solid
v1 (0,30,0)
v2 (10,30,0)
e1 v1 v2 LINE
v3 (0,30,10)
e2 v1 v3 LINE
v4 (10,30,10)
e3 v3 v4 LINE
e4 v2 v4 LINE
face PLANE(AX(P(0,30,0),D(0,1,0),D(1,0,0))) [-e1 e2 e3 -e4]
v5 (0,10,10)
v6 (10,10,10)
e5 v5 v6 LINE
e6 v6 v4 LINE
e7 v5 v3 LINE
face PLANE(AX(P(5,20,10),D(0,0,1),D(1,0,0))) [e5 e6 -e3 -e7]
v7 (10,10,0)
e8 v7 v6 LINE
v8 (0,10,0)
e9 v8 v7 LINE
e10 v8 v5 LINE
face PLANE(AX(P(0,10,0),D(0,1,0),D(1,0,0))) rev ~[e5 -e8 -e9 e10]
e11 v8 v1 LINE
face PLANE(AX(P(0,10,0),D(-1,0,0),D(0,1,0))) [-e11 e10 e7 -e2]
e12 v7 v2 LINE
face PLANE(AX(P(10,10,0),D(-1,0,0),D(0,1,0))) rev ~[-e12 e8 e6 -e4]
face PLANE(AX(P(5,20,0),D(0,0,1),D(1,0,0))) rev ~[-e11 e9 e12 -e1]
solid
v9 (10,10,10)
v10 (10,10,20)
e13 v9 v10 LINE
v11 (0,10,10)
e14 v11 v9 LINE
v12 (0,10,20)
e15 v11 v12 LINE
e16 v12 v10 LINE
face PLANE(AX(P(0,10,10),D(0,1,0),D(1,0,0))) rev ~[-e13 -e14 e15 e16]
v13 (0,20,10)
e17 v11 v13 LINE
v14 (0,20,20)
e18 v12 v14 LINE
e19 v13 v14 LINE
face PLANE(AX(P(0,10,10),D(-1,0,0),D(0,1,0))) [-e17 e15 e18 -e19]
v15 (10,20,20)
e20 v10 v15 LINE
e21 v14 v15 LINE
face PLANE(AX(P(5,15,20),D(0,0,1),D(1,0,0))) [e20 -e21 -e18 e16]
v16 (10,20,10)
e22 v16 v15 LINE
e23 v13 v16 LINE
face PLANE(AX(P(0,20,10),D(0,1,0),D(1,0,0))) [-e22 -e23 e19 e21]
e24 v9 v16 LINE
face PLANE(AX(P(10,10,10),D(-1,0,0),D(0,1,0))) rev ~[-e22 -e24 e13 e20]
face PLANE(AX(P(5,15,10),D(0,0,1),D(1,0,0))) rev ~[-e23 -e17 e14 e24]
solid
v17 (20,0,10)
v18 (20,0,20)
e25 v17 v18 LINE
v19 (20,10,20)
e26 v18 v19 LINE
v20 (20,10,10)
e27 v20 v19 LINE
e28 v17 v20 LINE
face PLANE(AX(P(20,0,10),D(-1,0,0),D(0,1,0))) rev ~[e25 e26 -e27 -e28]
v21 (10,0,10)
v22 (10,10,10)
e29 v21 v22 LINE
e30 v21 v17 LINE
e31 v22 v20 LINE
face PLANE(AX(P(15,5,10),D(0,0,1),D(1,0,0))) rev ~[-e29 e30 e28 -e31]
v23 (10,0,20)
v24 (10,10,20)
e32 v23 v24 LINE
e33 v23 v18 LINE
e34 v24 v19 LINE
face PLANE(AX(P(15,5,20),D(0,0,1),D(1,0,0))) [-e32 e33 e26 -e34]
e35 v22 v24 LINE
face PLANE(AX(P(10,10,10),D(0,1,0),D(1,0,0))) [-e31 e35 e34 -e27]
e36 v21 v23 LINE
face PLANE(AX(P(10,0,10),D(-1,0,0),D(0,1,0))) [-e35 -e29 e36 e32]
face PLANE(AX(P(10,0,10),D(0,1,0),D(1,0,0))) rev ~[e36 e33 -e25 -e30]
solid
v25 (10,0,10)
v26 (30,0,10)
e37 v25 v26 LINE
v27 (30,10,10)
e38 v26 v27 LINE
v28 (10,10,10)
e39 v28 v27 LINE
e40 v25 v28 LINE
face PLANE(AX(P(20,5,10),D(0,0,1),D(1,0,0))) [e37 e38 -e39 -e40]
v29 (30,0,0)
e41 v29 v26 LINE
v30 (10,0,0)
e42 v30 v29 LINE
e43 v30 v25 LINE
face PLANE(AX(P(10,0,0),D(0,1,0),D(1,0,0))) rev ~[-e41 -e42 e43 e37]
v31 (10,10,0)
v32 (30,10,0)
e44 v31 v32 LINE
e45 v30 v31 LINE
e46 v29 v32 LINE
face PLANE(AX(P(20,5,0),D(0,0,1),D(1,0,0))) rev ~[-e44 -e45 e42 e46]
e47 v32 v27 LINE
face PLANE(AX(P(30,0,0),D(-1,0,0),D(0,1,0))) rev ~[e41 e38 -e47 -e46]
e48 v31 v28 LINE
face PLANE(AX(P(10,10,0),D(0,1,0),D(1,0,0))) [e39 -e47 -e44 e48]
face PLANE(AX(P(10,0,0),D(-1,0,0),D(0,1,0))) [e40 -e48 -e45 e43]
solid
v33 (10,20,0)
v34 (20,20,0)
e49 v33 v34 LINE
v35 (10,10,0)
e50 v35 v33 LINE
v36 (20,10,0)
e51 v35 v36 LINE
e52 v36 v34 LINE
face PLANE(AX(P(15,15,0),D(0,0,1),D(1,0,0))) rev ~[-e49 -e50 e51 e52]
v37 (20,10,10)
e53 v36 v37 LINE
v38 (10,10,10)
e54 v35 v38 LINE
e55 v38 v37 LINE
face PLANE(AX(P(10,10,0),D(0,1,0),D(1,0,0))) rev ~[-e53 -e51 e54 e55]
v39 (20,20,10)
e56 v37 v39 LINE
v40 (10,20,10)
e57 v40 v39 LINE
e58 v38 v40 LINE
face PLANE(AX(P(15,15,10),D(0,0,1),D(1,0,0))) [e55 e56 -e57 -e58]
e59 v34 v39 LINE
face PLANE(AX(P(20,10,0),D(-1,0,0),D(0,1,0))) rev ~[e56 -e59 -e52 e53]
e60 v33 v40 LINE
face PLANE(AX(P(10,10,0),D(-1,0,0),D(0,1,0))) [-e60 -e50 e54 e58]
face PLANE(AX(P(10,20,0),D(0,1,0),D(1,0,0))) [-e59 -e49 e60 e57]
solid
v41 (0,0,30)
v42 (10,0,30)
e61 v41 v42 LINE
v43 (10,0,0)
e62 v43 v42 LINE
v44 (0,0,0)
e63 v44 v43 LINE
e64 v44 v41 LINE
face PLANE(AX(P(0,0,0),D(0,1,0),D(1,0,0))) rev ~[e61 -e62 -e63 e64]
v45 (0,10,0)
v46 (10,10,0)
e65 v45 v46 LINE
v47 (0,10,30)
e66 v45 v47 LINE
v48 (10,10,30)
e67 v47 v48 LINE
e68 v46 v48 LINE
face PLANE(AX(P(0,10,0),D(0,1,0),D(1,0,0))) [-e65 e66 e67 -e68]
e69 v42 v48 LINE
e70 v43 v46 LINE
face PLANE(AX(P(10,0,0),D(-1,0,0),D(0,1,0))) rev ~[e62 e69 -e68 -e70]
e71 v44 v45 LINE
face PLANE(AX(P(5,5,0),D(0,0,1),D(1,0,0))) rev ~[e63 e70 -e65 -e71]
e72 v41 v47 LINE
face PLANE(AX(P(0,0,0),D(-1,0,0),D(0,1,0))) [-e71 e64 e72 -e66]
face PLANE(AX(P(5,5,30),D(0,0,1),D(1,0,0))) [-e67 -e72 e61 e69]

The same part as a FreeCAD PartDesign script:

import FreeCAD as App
import Part
import Sketcher
Q = App.Units.Quantity

doc = App.newDocument("Part")
body = doc.addObject("PartDesign::Body", "Body")

# Sketch on XY plane
sketch1 = body.newObject("Sketcher::SketchObject", "Sketch")
sketch1.AttachmentSupport = (doc.getObject("XY_Plane"), [""])
sketch1.MapMode = "FlatFace"
sketch1.addGeometry([
    Part.LineSegment(App.Vector(0, 10, 0), App.Vector(0, 0, 0)),
    Part.LineSegment(App.Vector(0, 0, 0), App.Vector(10, 0, 0)),
    Part.LineSegment(App.Vector(10, 0, 0), App.Vector(10, 10, 0)),
    Part.LineSegment(App.Vector(10, 10, 0), App.Vector(0, 10, 0)),
], False)
sketch1.addConstraint([
    Sketcher.Constraint("Coincident", 0, 2, 1, 1),
    Sketcher.Constraint("Coincident", 1, 2, 2, 1),
    Sketcher.Constraint("Coincident", 2, 2, 3, 1),
    Sketcher.Constraint("Coincident", 3, 2, 0, 1),
    Sketcher.Constraint("Vertical", 0),
    Sketcher.Constraint("Horizontal", 1),
    Sketcher.Constraint("Vertical", 2),
    Sketcher.Constraint("Horizontal", 3),
    Sketcher.Constraint("Coincident", 0, 2, -1, 1),
    Sketcher.Constraint("Equal", 3, 0),
    Sketcher.Constraint("DistanceX", 1, 1, 1, 2, Q("10 mm")),
])
pad1 = body.newObject("PartDesign::Pad", "Pad")
pad1.Profile = sketch1
pad1.Length = 30
body2 = doc.addObject("PartDesign::Body", "Body001")

# Sketch on XY plane
sketch2 = body2.newObject("Sketcher::SketchObject", "Sketch001")
sketch2.AttachmentSupport = (doc.getObject("XY_Plane001"), [""])
sketch2.MapMode = "FlatFace"
sketch2.addGeometry([
    Part.LineSegment(App.Vector(10, 10, 0), App.Vector(10, 0, 0)),
    Part.LineSegment(App.Vector(10, 0, 0), App.Vector(30, 0, 0)),
    Part.LineSegment(App.Vector(30, 0, 0), App.Vector(30, 10, 0)),
    Part.LineSegment(App.Vector(30, 10, 0), App.Vector(10, 10, 0)),
], False)
sketch2.addConstraint([
    Sketcher.Constraint("Coincident", 0, 2, 1, 1),
    Sketcher.Constraint("Coincident", 1, 2, 2, 1),
    Sketcher.Constraint("Coincident", 2, 2, 3, 1),
    Sketcher.Constraint("Coincident", 3, 2, 0, 1),
    Sketcher.Constraint("Vertical", 0),
    Sketcher.Constraint("Horizontal", 1),
    Sketcher.Constraint("Vertical", 2),
    Sketcher.Constraint("Horizontal", 3),
    Sketcher.Constraint("PointOnObject", 0, 2, -1),
    Sketcher.Constraint("DistanceX", 1, 1, 1, 2, Q("20 mm")),
    Sketcher.Constraint("DistanceY", 0, 2, 0, 1, Q("10 mm")),
    Sketcher.Constraint("DistanceX", -1, 1, 0, 2, Q("10 mm")),
])
pad2 = body2.newObject("PartDesign::Pad", "Pad001")
pad2.Profile = sketch2
pad2.Length = 10
body3 = doc.addObject("PartDesign::Body", "Body002")

# Sketch on XY plane
sketch3 = body3.newObject("Sketcher::SketchObject", "Sketch002")
sketch3.AttachmentSupport = (doc.getObject("XY_Plane002"), [""])
sketch3.MapMode = "FlatFace"
sketch3.AttachmentOffset = App.Placement(App.Vector(0, 0, 10), App.Rotation())
sketch3.addGeometry([
    Part.LineSegment(App.Vector(10, 10, 0), App.Vector(10, 0, 0)),
    Part.LineSegment(App.Vector(10, 0, 0), App.Vector(20, 0, 0)),
    Part.LineSegment(App.Vector(20, 0, 0), App.Vector(20, 10, 0)),
    Part.LineSegment(App.Vector(20, 10, 0), App.Vector(10, 10, 0)),
], False)
sketch3.addConstraint([
    Sketcher.Constraint("Coincident", 0, 2, 1, 1),
    Sketcher.Constraint("Coincident", 1, 2, 2, 1),
    Sketcher.Constraint("Coincident", 2, 2, 3, 1),
    Sketcher.Constraint("Coincident", 3, 2, 0, 1),
    Sketcher.Constraint("Vertical", 0),
    Sketcher.Constraint("Horizontal", 1),
    Sketcher.Constraint("Vertical", 2),
    Sketcher.Constraint("Horizontal", 3),
    Sketcher.Constraint("PointOnObject", 0, 2, -1),
    Sketcher.Constraint("Equal", 3, 0),
    Sketcher.Constraint("DistanceX", 1, 1, 1, 2, Q("10 mm")),
    Sketcher.Constraint("DistanceX", -1, 1, 0, 2, Q("10 mm")),
])
pad3 = body3.newObject("PartDesign::Pad", "Pad002")
pad3.Profile = sketch3
pad3.Length = 10
body4 = doc.addObject("PartDesign::Body", "Body003")

# Sketch on XY plane
sketch4 = body4.newObject("Sketcher::SketchObject", "Sketch003")
sketch4.AttachmentSupport = (doc.getObject("XY_Plane003"), [""])
sketch4.MapMode = "FlatFace"
sketch4.AttachmentOffset = App.Placement(App.Vector(0, 0, 10), App.Rotation())
sketch4.addGeometry([
    Part.LineSegment(App.Vector(0, 20, 0), App.Vector(0, 10, 0)),
    Part.LineSegment(App.Vector(0, 10, 0), App.Vector(10, 10, 0)),
    Part.LineSegment(App.Vector(10, 10, 0), App.Vector(10, 20, 0)),
    Part.LineSegment(App.Vector(10, 20, 0), App.Vector(0, 20, 0)),
], False)
sketch4.addConstraint([
    Sketcher.Constraint("Coincident", 0, 2, 1, 1),
    Sketcher.Constraint("Coincident", 1, 2, 2, 1),
    Sketcher.Constraint("Coincident", 2, 2, 3, 1),
    Sketcher.Constraint("Coincident", 3, 2, 0, 1),
    Sketcher.Constraint("Vertical", 0),
    Sketcher.Constraint("Horizontal", 1),
    Sketcher.Constraint("Vertical", 2),
    Sketcher.Constraint("Horizontal", 3),
    Sketcher.Constraint("PointOnObject", 0, 2, -2),
    Sketcher.Constraint("Equal", 3, 0),
    Sketcher.Constraint("DistanceX", 1, 1, 1, 2, Q("10 mm")),
    Sketcher.Constraint("DistanceY", -1, 1, 0, 2, Q("10 mm")),
])
pad4 = body4.newObject("PartDesign::Pad", "Pad003")
pad4.Profile = sketch4
pad4.Length = 10
body5 = doc.addObject("PartDesign::Body", "Body004")

# Sketch on XY plane
sketch5 = body5.newObject("Sketcher::SketchObject", "Sketch004")
sketch5.AttachmentSupport = (doc.getObject("XY_Plane004"), [""])
sketch5.MapMode = "FlatFace"
sketch5.addGeometry([
    Part.LineSegment(App.Vector(0, 30, 0), App.Vector(0, 10, 0)),
    Part.LineSegment(App.Vector(0, 10, 0), App.Vector(10, 10, 0)),
    Part.LineSegment(App.Vector(10, 10, 0), App.Vector(10, 30, 0)),
    Part.LineSegment(App.Vector(10, 30, 0), App.Vector(0, 30, 0)),
], False)
sketch5.addConstraint([
    Sketcher.Constraint("Coincident", 0, 2, 1, 1),
    Sketcher.Constraint("Coincident", 1, 2, 2, 1),
    Sketcher.Constraint("Coincident", 2, 2, 3, 1),
    Sketcher.Constraint("Coincident", 3, 2, 0, 1),
    Sketcher.Constraint("Vertical", 0),
    Sketcher.Constraint("Horizontal", 1),
    Sketcher.Constraint("Vertical", 2),
    Sketcher.Constraint("Horizontal", 3),
    Sketcher.Constraint("PointOnObject", 0, 2, -2),
    Sketcher.Constraint("DistanceX", 1, 1, 1, 2, Q("10 mm")),
    Sketcher.Constraint("DistanceY", 0, 2, 0, 1, Q("20 mm")),
    Sketcher.Constraint("DistanceY", -1, 1, 0, 2, Q("10 mm")),
])
pad5 = body5.newObject("PartDesign::Pad", "Pad004")
pad5.Profile = sketch5
pad5.Length = 10
body6 = doc.addObject("PartDesign::Body", "Body005")

# Sketch on XY plane
sketch6 = body6.newObject("Sketcher::SketchObject", "Sketch005")
sketch6.AttachmentSupport = (doc.getObject("XY_Plane005"), [""])
sketch6.MapMode = "FlatFace"
sketch6.addGeometry([
    Part.LineSegment(App.Vector(10, 20, 0), App.Vector(10, 10, 0)),
    Part.LineSegment(App.Vector(10, 10, 0), App.Vector(20, 10, 0)),
    Part.LineSegment(App.Vector(20, 10, 0), App.Vector(20, 20, 0)),
    Part.LineSegment(App.Vector(20, 20, 0), App.Vector(10, 20, 0)),
], False)
sketch6.addConstraint([
    Sketcher.Constraint("Coincident", 0, 2, 1, 1),
    Sketcher.Constraint("Coincident", 1, 2, 2, 1),
    Sketcher.Constraint("Coincident", 2, 2, 3, 1),
    Sketcher.Constraint("Coincident", 3, 2, 0, 1),
    Sketcher.Constraint("Vertical", 0),
    Sketcher.Constraint("Horizontal", 1),
    Sketcher.Constraint("Vertical", 2),
    Sketcher.Constraint("Horizontal", 3),
    Sketcher.Constraint("Equal", 3, 0),
    Sketcher.Constraint("DistanceX", 1, 1, 1, 2, Q("10 mm")),
    Sketcher.Constraint("DistanceX", -1, 1, 0, 2, Q("10 mm")),
    Sketcher.Constraint("DistanceY", -1, 1, 0, 2, Q("10 mm")),
])
pad6 = body6.newObject("PartDesign::Pad", "Pad005")
pad6.Profile = sketch6
pad6.Length = 10

doc.recompute()
